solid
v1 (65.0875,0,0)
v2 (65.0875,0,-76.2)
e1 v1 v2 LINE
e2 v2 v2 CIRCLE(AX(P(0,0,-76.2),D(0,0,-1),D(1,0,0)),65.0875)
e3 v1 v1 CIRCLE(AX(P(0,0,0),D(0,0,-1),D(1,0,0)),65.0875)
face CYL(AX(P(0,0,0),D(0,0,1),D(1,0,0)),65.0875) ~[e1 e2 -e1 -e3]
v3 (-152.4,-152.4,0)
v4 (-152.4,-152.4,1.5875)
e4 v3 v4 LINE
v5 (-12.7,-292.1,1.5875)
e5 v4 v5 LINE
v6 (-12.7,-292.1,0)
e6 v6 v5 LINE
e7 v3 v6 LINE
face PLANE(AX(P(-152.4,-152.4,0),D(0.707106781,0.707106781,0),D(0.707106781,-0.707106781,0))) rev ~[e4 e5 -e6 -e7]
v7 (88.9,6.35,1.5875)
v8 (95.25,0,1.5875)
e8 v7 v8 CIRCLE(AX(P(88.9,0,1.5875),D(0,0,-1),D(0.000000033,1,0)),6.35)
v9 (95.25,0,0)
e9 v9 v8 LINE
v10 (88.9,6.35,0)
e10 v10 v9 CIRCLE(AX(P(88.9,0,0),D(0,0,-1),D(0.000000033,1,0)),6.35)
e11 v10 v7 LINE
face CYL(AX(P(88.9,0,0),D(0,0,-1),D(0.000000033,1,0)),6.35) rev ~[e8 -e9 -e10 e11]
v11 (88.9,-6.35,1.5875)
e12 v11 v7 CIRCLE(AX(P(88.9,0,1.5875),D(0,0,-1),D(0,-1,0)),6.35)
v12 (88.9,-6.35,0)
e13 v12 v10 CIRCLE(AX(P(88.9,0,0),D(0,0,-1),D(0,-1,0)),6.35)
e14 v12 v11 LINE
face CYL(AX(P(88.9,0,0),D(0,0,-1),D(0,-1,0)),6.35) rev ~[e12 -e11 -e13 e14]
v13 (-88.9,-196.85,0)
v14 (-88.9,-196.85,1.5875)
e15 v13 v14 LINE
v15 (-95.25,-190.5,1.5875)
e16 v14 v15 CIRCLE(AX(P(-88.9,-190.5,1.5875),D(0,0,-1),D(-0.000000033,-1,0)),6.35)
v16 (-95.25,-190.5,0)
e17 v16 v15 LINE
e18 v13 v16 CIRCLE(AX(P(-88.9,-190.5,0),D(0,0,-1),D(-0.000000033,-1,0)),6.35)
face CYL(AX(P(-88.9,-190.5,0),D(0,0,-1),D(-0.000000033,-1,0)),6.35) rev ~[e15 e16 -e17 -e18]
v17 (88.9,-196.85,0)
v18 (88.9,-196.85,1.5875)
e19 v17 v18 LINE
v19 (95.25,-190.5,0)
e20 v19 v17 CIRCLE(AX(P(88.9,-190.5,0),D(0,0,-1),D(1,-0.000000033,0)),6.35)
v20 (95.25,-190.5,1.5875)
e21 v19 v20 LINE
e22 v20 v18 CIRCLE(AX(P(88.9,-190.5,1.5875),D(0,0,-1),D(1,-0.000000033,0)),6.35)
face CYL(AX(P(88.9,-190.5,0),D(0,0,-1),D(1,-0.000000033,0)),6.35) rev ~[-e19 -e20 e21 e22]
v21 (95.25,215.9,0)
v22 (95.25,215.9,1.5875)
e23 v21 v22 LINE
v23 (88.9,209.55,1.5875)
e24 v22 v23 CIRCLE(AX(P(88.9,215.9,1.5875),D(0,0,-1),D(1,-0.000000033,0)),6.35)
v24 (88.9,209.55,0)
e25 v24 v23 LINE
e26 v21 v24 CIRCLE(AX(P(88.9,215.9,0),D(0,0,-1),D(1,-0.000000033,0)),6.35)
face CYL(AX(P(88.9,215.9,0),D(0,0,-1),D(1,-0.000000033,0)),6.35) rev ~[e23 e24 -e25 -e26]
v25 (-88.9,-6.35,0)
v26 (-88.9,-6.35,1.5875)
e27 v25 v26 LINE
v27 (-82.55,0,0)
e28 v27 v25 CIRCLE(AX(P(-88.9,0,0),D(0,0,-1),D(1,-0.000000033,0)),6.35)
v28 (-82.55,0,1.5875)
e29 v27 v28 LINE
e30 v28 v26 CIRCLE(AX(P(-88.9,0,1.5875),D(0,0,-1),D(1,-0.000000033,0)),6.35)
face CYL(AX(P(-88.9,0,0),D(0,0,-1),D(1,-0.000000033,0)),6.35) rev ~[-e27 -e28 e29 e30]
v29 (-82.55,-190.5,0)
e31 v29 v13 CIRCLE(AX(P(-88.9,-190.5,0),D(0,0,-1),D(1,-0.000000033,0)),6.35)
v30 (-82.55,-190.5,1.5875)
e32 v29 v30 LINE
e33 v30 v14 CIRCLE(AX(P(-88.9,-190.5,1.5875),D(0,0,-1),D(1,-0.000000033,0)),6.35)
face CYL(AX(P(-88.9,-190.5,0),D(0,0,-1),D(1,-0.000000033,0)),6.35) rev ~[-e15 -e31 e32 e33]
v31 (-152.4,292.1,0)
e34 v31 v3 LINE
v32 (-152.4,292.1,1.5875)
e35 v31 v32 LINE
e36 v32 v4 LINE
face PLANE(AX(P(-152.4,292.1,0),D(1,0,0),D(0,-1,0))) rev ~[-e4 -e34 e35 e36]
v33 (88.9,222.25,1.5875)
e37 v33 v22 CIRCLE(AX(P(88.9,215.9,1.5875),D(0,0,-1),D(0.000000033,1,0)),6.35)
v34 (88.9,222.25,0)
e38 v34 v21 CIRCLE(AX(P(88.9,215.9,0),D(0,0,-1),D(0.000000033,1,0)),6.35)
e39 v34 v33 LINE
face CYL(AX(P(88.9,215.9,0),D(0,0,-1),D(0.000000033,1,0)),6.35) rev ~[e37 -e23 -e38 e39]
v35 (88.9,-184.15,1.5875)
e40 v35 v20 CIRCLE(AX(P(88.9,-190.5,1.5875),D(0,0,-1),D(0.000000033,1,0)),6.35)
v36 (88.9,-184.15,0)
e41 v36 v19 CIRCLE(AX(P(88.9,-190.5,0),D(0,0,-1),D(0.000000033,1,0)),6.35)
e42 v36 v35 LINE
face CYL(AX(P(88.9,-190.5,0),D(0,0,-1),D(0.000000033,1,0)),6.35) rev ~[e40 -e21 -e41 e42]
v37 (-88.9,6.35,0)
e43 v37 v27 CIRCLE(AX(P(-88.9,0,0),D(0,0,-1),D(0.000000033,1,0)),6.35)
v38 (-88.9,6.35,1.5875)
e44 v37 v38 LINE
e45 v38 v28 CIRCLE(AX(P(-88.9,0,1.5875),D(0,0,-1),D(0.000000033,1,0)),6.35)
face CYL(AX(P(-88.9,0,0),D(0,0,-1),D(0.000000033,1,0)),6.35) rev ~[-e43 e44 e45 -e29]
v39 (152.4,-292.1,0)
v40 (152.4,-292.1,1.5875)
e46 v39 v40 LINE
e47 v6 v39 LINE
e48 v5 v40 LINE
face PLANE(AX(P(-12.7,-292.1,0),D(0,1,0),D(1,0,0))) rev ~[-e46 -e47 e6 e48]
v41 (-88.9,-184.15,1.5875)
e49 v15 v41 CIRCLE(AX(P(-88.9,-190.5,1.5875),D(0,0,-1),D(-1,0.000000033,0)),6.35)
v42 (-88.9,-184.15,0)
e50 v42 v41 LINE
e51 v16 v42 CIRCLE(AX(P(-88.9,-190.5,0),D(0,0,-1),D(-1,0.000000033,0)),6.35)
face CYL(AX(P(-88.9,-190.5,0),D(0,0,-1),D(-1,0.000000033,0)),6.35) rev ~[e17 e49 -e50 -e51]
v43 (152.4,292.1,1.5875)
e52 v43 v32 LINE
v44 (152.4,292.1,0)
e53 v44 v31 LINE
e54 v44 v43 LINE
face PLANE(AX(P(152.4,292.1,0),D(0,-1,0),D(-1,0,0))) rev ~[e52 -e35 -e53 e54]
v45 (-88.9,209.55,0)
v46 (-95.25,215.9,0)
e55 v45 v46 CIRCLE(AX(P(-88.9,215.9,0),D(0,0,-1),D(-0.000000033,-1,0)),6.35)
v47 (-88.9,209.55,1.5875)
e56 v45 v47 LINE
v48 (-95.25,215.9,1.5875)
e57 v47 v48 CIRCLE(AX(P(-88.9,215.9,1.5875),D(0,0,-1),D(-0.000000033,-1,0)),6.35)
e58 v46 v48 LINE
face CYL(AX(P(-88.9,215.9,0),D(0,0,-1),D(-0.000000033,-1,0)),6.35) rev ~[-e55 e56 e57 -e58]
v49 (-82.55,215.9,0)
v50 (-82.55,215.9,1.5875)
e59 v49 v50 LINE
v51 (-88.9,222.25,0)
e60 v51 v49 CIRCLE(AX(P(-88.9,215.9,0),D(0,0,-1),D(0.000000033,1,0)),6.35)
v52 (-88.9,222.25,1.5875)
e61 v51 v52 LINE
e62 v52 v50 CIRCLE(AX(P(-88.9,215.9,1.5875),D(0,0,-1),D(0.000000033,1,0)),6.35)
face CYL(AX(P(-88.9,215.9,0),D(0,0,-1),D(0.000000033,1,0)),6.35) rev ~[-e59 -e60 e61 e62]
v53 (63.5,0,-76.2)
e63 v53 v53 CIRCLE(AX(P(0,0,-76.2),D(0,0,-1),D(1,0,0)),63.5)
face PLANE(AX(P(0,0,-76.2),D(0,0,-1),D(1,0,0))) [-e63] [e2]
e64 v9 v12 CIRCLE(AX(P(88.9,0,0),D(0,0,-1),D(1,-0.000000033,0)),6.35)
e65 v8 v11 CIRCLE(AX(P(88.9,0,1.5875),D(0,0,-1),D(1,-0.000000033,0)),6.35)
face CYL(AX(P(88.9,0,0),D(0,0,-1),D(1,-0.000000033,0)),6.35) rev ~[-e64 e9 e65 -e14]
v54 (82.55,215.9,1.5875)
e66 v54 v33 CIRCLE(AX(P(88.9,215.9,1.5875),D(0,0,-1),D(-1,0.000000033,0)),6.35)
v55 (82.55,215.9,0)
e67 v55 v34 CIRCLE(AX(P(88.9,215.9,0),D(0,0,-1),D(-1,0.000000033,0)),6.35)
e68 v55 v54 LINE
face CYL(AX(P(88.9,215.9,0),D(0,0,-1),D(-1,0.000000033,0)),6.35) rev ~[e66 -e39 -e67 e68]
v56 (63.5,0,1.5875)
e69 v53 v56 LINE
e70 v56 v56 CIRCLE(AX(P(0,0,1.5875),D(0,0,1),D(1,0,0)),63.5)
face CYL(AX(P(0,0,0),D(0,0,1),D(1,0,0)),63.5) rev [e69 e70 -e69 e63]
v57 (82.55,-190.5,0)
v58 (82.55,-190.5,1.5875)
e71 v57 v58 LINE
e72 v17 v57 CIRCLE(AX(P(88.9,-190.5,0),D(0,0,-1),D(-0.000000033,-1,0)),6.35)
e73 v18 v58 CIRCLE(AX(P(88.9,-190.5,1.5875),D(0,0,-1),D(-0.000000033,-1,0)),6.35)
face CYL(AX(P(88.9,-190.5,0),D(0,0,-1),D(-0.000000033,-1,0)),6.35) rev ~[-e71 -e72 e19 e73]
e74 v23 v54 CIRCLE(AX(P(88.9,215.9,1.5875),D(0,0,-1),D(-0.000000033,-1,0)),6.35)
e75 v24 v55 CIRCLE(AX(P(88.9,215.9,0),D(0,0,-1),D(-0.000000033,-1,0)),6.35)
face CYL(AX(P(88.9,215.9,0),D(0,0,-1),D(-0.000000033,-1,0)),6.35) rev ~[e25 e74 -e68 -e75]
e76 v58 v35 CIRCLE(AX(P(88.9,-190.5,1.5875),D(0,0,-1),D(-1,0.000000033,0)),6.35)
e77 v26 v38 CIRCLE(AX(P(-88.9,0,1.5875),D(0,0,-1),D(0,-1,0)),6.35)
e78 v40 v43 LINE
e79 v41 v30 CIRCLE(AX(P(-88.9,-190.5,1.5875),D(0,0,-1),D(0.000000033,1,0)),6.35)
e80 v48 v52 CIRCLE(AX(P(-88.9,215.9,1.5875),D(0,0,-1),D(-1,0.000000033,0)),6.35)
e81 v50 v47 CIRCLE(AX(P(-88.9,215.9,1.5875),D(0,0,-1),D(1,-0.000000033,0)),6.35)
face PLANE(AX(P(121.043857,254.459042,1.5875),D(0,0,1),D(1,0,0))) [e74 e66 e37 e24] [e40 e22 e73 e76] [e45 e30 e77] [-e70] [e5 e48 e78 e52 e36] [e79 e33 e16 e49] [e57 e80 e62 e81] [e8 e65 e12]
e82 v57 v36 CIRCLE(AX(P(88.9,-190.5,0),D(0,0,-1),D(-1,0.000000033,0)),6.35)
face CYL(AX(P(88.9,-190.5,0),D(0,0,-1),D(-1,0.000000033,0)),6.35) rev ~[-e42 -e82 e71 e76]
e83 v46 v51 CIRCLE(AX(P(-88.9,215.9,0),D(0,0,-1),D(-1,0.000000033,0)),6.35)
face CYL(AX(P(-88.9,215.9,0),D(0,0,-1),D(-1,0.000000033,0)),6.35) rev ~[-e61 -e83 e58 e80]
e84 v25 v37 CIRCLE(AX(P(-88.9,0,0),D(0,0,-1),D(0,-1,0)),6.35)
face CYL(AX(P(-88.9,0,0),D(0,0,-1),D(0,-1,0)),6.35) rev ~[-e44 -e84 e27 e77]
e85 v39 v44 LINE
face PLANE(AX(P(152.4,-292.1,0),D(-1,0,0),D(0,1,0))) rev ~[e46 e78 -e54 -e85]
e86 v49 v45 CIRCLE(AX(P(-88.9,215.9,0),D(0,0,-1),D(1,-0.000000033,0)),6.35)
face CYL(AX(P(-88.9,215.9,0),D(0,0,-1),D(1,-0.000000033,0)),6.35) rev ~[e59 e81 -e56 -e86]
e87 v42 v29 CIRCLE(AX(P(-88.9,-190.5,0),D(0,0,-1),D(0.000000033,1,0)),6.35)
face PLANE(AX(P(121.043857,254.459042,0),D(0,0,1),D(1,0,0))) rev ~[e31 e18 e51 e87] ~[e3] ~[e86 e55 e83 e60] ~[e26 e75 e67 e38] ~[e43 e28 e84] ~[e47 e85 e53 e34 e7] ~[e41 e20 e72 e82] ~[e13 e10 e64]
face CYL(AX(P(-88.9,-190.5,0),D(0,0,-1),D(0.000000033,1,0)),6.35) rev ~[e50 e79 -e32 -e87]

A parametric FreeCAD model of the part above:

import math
import FreeCAD as App
import Part
import Sketcher

V = App.Vector
Q = App.Units.Quantity

doc = App.newDocument("Part")
body = doc.addObject("PartDesign::Body", "Body")

# Sketch on XY plane
sketch1 = body.newObject("Sketcher::SketchObject", "Sketch")
sketch1.AttachmentSupport = (doc.getObject("XY_Plane"), [""])
sketch1.MapMode = "FlatFace"
sketch1.addGeometry([
    Part.LineSegment(V(152, 292, 0), V(-152, 292, 0)),  # 0
    Part.LineSegment(V(-152, 292, 0), V(-152, -152, 0)),  # 1
    Part.LineSegment(V(-152, -152, 0), V(-13, -292, 0)),  # 2
    Part.LineSegment(V(-13, -292, 0), V(152, -292, 0)),  # 3
    Part.LineSegment(V(152, -292, 0), V(152, 292, 0)),  # 4
    Part.ArcOfCircle(Part.Circle(V(-89, -191, 0), V(0, 0, 1), 6), math.radians(90), math.radians(180)),  # 5
    Part.ArcOfCircle(Part.Circle(V(-89, -191, 0), V(0, 0, 1), 6), math.radians(0), math.radians(90)),  # 6
    Part.ArcOfCircle(Part.Circle(V(-89, -190, 0), V(0, 0, 1), 6), math.radians(-90), math.radians(0)),  # 7
    Part.ArcOfCircle(Part.Circle(V(-89, -190, 0), V(0, 0, 1), 6), math.radians(-180), math.radians(-90)),  # 8
    Part.ArcOfCircle(Part.Circle(V(89, -191, 0), V(0, 0, 1), 6), math.radians(90), math.radians(180)),  # 9
    Part.ArcOfCircle(Part.Circle(V(89, -191, 0), V(0, 0, 1), 6), math.radians(0), math.radians(90)),  # 10
    Part.ArcOfCircle(Part.Circle(V(89, -190, 0), V(0, 0, 1), 6), math.radians(-90), math.radians(0)),  # 11
    Part.ArcOfCircle(Part.Circle(V(89, -190, 0), V(0, 0, 1), 6), math.radians(-180), math.radians(-90)),  # 12
    Part.ArcOfCircle(Part.Circle(V(-89, 216, 0), V(0, 0, 1), 6), math.radians(90), math.radians(180)),  # 13
    Part.ArcOfCircle(Part.Circle(V(-89, 216, 0), V(0, 0, 1), 6), math.radians(0), math.radians(90)),  # 14
    Part.ArcOfCircle(Part.Circle(V(-89, 216, 0), V(0, 0, 1), 6), math.radians(-90), math.radians(0)),  # 15
    Part.ArcOfCircle(Part.Circle(V(-89, 216, 0), V(0, 0, 1), 6), math.radians(-180), math.radians(-90)),  # 16
    Part.ArcOfCircle(Part.Circle(V(-89, 0, 0), V(0, 0, 1), 6), math.radians(0), math.radians(90)),  # 17
    Part.ArcOfCircle(Part.Circle(V(-89, 0, 0), V(0, 0, 1), 6), math.radians(-90), math.radians(0)),  # 18
    Part.ArcOfCircle(Part.Circle(V(-89, 0, 0), V(0, 0, 1), 6), math.radians(90), math.radians(270)),  # 19
    Part.ArcOfCircle(Part.Circle(V(89, 216, 0), V(0, 0, 1), 6), math.radians(0), math.radians(90)),  # 20
    Part.ArcOfCircle(Part.Circle(V(89, 216, 0), V(0, 0, 1), 6), math.radians(-90), math.radians(0)),  # 21
    Part.ArcOfCircle(Part.Circle(V(89, 216, 0), V(0, 0, 1), 6), math.radians(-180), math.radians(-90)),  # 22
    Part.ArcOfCircle(Part.Circle(V(89, 216, 0), V(0, 0, 1), 6), math.radians(90), math.radians(180)),  # 23
    Part.ArcOfCircle(Part.Circle(V(89, 0, 0), V(0, 0, 1), 6), math.radians(90), math.radians(270)),  # 24
    Part.ArcOfCircle(Part.Circle(V(89, 0, 0), V(0, 0, 1), 6), math.radians(0), math.radians(90)),  # 25
    Part.ArcOfCircle(Part.Circle(V(89, 0, 0), V(0, 0, 1), 6), math.radians(-90), math.radians(0)),  # 26
    Part.Circle(V(0, 0, 0), V(0, 0, 1), 64),  # 27
], False)
sketch1.addConstraint([
    Sketcher.Constraint("Coincident", 0, 2, 1, 1),
    Sketcher.Constraint("Coincident", 1, 2, 2, 1),
    Sketcher.Constraint("Coincident", 2, 2, 3, 1),
    Sketcher.Constraint("Coincident", 3, 2, 4, 1),
    Sketcher.Constraint("Coincident", 4, 2, 0, 1),
    Sketcher.Constraint("Tangent", 5, 1, 6, 2),
    Sketcher.Constraint("Tangent", 6, 1, 7, 2),
    Sketcher.Constraint("Tangent", 7, 1, 8, 2),
    Sketcher.Constraint("Tangent", 8, 1, 5, 2),
    Sketcher.Constraint("Tangent", 9, 1, 10, 2),
    Sketcher.Constraint("Tangent", 10, 1, 11, 2),
    Sketcher.Constraint("Tangent", 11, 1, 12, 2),
    Sketcher.Constraint("Tangent", 12, 1, 9, 2),
    Sketcher.Constraint("Tangent", 13, 1, 14, 2),
    Sketcher.Constraint("Tangent", 14, 1, 15, 2),
    Sketcher.Constraint("Tangent", 15, 1, 16, 2),
    Sketcher.Constraint("Tangent", 16, 1, 13, 2),
    Sketcher.Constraint("Tangent", 17, 1, 18, 2),
    Sketcher.Constraint("Tangent", 18, 1, 19, 2),
    Sketcher.Constraint("Tangent", 19, 1, 17, 2),
    Sketcher.Constraint("Tangent", 20, 1, 21, 2),
    Sketcher.Constraint("Tangent", 21, 1, 22, 2),
    Sketcher.Constraint("Tangent", 22, 1, 23, 2),
    Sketcher.Constraint("Tangent", 23, 1, 20, 2),
    Sketcher.Constraint("Tangent", 24, 1, 25, 2),
    Sketcher.Constraint("Tangent", 25, 1, 26, 2),
    Sketcher.Constraint("Tangent", 26, 1, 24, 2),
    Sketcher.Constraint("Horizontal", 0),
    Sketcher.Constraint("Vertical", 1),
    Sketcher.Constraint("Horizontal", 3),
    Sketcher.Constraint("Vertical", 4),
    Sketcher.Constraint("Coincident", 27, 3, -1, 1),
    Sketcher.Constraint("Equal", 5, 6),
    Sketcher.Constraint("Equal", 8, 9),
    Sketcher.Constraint("Equal", 9, 10),
    Sketcher.Constraint("Equal", 12, 13),
    Sketcher.Constraint("Equal", 13, 14),
    Sketcher.Constraint("Equal", 16, 17),
    Sketcher.Constraint("Equal", 19, 20),
    Sketcher.Constraint("Equal", 20, 21),
    Sketcher.Constraint("Equal", 23, 24),
    Sketcher.Constraint("Symmetric", 17, 3, 24, 3, -1, 1),
    Sketcher.Constraint("Symmetric", 0, 2, 3, 2, -1, 1),
    Sketcher.Constraint("Symmetric", 5, 3, 9, 3, -2),
    Sketcher.Constraint("Symmetric", 13, 3, 20, 3, -2),
    Sketcher.Constraint("Symmetric", 19, 1, 24, 1, -2),
    Sketcher.Constraint("PointOnObject", 17, 1, -1),
    Sketcher.Constraint("PointOnObject", 25, 1, -1),
    Sketcher.Constraint("Horizontal", 12, 3, 6, 1),
    Sketcher.Constraint("Horizontal", 6, 1, 8, 1),
    Sketcher.Constraint("Horizontal", 8, 1, 10, 1),
    Sketcher.Constraint("Horizontal", 10, 1, 12, 1),
    Sketcher.Constraint("Horizontal", 23, 3, 14, 1),
    Sketcher.Constraint("Horizontal", 14, 1, 16, 1),
    Sketcher.Constraint("Horizontal", 16, 1, 20, 1),
    Sketcher.Constraint("Horizontal", 20, 1, 22, 1),
    Sketcher.Constraint("Vertical", 8, 3, 13, 3),
    Sketcher.Constraint("Vertical", 16, 3, 17, 3),
    Sketcher.Constraint("Vertical", 19, 3, 5, 1),
    Sketcher.Constraint("Vertical", 5, 1, 7, 1),
    Sketcher.Constraint("Vertical", 26, 3, 9, 1),
    Sketcher.Constraint("Vertical", 9, 1, 11, 1),
    Sketcher.Constraint("Vertical", 7, 1, 13, 1),
    Sketcher.Constraint("Vertical", 13, 1, 15, 1),
    Sketcher.Constraint("Vertical", 15, 1, 18, 1),
    Sketcher.Constraint("Vertical", 18, 1, 19, 1),
    Sketcher.Constraint("Vertical", 11, 1, 21, 1),
    Sketcher.Constraint("Vertical", 21, 1, 23, 1),
    Sketcher.Constraint("Vertical", 24, 1, 26, 1),
    Sketcher.Constraint("Diameter", 27, Q("5 in")),
    Sketcher.Constraint("DistanceX", 0, 2, 0, 1, Q("12 in")),
    Sketcher.Constraint("DistanceY", 4, 1, 4, 2, Q("23 in")),
    Sketcher.Constraint("Radius", 5, Q("0.25 in")),
    Sketcher.Constraint("DistanceX", 3, 1, 3, 2, Q("6.5 in")),
    Sketcher.Constraint("DistanceY", 1, 2, 1, 1, Q("17.5 in")),
    Sketcher.Constraint("DistanceX", 5, 3, 9, 3, Q("7 in")),
    Sketcher.Constraint("DistanceY", 7, 3, 13, 3, Q("16 in")),
    Sketcher.Constraint("DistanceY", 15, 3, 0, 2, Q("3 in")),
])
pad1 = body.newObject("PartDesign::Pad", "Pad")
pad1.Profile = sketch1
pad1.Length = Q("0.0625 in")

# Sketch on XY plane
sketch2 = body.newObject("Sketcher::SketchObject", "Sketch001")
sketch2.AttachmentSupport = (doc.getObject("XY_Plane"), [""])
sketch2.MapMode = "FlatFace"
sketch2.addGeometry([
    Part.Circle(V(0, 0, 0), V(0, 0, 1), 65),
    Part.Circle(V(0, 0, 0), V(0, 0, 1), 64),
], False)
sketch2.addConstraint([
    Sketcher.Constraint("Coincident", 0, 3, -1, 1),
    Sketcher.Constraint("Coincident", 1, 3, -1, 1),
    Sketcher.Constraint("Diameter", 1, Q("5 in")),
    Sketcher.Constraint("Diameter", 0, Q("5.125 in")),
])
pad2 = body.newObject("PartDesign::Pad", "Pad001")
pad2.Profile = sketch2
pad2.Length = Q("3 in")
pad2.Reversed = True

doc.recompute()
